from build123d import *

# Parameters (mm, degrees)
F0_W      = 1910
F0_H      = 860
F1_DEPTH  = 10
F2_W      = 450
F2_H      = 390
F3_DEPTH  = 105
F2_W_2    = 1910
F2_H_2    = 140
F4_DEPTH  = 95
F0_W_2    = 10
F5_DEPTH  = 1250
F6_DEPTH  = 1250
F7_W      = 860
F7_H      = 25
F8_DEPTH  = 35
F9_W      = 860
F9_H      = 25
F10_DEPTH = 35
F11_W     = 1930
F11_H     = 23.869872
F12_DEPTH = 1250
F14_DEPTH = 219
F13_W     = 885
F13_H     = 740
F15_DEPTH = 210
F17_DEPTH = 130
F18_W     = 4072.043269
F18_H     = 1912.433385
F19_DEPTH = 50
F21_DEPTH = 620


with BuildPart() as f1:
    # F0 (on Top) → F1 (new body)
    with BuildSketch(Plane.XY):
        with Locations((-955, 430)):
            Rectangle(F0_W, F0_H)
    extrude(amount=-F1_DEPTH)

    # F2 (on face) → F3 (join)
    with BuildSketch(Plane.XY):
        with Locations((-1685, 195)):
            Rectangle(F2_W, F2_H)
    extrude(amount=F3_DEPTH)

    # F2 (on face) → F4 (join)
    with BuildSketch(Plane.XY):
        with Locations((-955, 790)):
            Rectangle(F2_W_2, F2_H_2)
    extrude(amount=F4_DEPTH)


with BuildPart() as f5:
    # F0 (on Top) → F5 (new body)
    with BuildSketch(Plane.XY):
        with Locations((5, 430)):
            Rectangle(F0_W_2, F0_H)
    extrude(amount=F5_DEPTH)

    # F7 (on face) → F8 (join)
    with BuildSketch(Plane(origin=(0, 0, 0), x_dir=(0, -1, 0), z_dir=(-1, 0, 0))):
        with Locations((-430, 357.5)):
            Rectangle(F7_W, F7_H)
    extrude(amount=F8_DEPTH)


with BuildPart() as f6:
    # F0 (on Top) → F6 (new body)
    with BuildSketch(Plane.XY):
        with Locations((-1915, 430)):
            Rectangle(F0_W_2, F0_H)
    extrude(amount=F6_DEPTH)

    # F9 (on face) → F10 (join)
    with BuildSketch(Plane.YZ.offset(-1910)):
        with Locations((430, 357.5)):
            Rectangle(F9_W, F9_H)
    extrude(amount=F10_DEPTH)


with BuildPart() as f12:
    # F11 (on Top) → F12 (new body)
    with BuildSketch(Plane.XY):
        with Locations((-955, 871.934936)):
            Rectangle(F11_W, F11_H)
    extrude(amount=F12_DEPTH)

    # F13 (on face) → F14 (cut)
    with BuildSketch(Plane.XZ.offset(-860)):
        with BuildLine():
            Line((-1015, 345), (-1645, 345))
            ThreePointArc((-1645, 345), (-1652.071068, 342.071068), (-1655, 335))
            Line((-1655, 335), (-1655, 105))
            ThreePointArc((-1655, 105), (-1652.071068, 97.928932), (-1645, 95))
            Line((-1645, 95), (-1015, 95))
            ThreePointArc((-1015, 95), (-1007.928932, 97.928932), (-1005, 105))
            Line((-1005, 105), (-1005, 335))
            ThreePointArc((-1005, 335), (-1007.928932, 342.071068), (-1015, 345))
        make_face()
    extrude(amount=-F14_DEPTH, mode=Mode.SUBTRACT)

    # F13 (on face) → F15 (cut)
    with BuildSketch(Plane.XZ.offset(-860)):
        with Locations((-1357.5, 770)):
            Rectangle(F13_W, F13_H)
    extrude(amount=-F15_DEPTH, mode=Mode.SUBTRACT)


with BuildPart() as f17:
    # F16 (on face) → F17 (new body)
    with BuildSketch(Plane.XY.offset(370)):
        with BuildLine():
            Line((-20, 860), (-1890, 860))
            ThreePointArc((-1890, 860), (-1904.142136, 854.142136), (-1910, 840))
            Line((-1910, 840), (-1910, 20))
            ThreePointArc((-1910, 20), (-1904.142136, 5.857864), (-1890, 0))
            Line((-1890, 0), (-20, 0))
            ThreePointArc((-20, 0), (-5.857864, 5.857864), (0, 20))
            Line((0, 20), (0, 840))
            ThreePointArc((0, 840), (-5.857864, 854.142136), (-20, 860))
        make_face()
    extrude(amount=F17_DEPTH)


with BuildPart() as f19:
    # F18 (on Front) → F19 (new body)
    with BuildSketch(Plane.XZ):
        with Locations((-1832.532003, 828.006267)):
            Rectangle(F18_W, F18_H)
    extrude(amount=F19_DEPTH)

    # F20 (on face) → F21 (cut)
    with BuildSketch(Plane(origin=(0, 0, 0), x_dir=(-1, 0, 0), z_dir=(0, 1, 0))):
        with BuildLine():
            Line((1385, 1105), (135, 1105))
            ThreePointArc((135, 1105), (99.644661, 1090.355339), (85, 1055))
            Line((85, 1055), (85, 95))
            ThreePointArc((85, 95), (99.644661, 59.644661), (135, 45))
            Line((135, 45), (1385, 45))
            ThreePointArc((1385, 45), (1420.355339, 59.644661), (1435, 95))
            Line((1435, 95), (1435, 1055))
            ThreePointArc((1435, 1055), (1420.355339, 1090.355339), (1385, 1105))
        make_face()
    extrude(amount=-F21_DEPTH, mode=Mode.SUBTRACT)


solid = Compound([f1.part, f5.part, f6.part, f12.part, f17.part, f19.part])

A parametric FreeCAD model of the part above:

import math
import FreeCAD as App
import Part
import Sketcher
from FreeCAD import Vector
Q = App.Units.Quantity


def add_polygon(sketch, points):
    """Adds a closed chain of lines whose ends are joined by coincident constraints."""
    first, n = sketch.GeometryCount, len(points)
    for a, b in zip(points, points[1:] + points[:1]):
        sketch.addGeometry(Part.LineSegment(App.Vector(*a, 0), App.Vector(*b, 0)), False)
    for i in range(n):
        sketch.addConstraint(Sketcher.Constraint("Coincident", first + i, 2, first + (i + 1) % n, 1))

doc = App.newDocument("Part")
body = doc.addObject("PartDesign::Body", "Body")

# Sketch on XY plane
sketch1 = body.newObject("Sketcher::SketchObject", "Sketch")
sketch1.AttachmentSupport = (doc.getObject("XY_Plane"), [""])
sketch1.MapMode = "FlatFace"
add_polygon(sketch1, [(-1910, 860), (-1910, 0), (0, 0), (0, 860)])  # lines 0-3
sketch1.addConstraint(Sketcher.Constraint("Vertical", 0))
sketch1.addConstraint(Sketcher.Constraint("Horizontal", 1))
sketch1.addConstraint(Sketcher.Constraint("Vertical", 2))
sketch1.addConstraint(Sketcher.Constraint("Horizontal", 3))
sketch1.addConstraint(Sketcher.Constraint("Coincident", 1, 2, -1, 1))
sketch1.addConstraint(Sketcher.Constraint("DistanceX", 1, 1, 1, 2, Q("1910 mm")))
sketch1.addConstraint(Sketcher.Constraint("DistanceY", 0, 2, 0, 1, Q("860 mm")))
pad1 = body.newObject("PartDesign::Pad", "Pad")
pad1.Profile = sketch1
pad1.Length = 10
pad1.Reversed = True

# Sketch on XY plane
sketch2 = body.newObject("Sketcher::SketchObject", "Sketch001")
sketch2.AttachmentSupport = (doc.getObject("XY_Plane"), [""])
sketch2.MapMode = "FlatFace"
add_polygon(sketch2, [(-1910, 390), (-1910, 0), (-1460, 0), (-1460, 390)])  # lines 0-3
sketch2.addConstraint(Sketcher.Constraint("Vertical", 0))
sketch2.addConstraint(Sketcher.Constraint("Horizontal", 1))
sketch2.addConstraint(Sketcher.Constraint("Vertical", 2))
sketch2.addConstraint(Sketcher.Constraint("Horizontal", 3))
sketch2.addConstraint(Sketcher.Constraint("PointOnObject", 0, 2, -1))
sketch2.addConstraint(Sketcher.Constraint("DistanceX", 1, 1, 1, 2, Q("450 mm")))
sketch2.addConstraint(Sketcher.Constraint("DistanceY", 0, 2, 0, 1, Q("390 mm")))
sketch2.addConstraint(Sketcher.Constraint("DistanceX", 0, 2, -1, 1, Q("1910 mm")))
pad2 = body.newObject("PartDesign::Pad", "Pad001")
pad2.Profile = sketch2
pad2.Length = 105

# Sketch on XY plane
sketch3 = body.newObject("Sketcher::SketchObject", "Sketch002")
sketch3.AttachmentSupport = (doc.getObject("XY_Plane"), [""])
sketch3.MapMode = "FlatFace"
add_polygon(sketch3, [(-1910, 860), (-1910, 720), (0, 720), (0, 860)])  # lines 0-3
sketch3.addConstraint(Sketcher.Constraint("Vertical", 0))
sketch3.addConstraint(Sketcher.Constraint("Horizontal", 1))
sketch3.addConstraint(Sketcher.Constraint("Vertical", 2))
sketch3.addConstraint(Sketcher.Constraint("Horizontal", 3))
sketch3.addConstraint(Sketcher.Constraint("PointOnObject", 1, 2, -2))
sketch3.addConstraint(Sketcher.Constraint("DistanceX", 1, 1, 1, 2, Q("1910 mm")))
sketch3.addConstraint(Sketcher.Constraint("DistanceY", 0, 2, 0, 1, Q("140 mm")))
sketch3.addConstraint(Sketcher.Constraint("DistanceY", -1, 1, 0, 2, Q("720 mm")))
pad3 = body.newObject("PartDesign::Pad", "Pad002")
pad3.Profile = sketch3
pad3.Length = 95
body2 = doc.addObject("PartDesign::Body", "Body001")

# Sketch on XY plane
sketch4 = body2.newObject("Sketcher::SketchObject", "Sketch003")
sketch4.AttachmentSupport = (doc.getObject("XY_Plane001"), [""])
sketch4.MapMode = "FlatFace"
add_polygon(sketch4, [(0, 860), (0, 0), (10, 0), (10, 860)])  # lines 0-3
sketch4.addConstraint(Sketcher.Constraint("Vertical", 0))
sketch4.addConstraint(Sketcher.Constraint("Horizontal", 1))
sketch4.addConstraint(Sketcher.Constraint("Vertical", 2))
sketch4.addConstraint(Sketcher.Constraint("Horizontal", 3))
sketch4.addConstraint(Sketcher.Constraint("Coincident", 0, 2, -1, 1))
sketch4.addConstraint(Sketcher.Constraint("DistanceX", 1, 1, 1, 2, Q("10 mm")))
sketch4.addConstraint(Sketcher.Constraint("DistanceY", 0, 2, 0, 1, Q("860 mm")))
pad4 = body2.newObject("PartDesign::Pad", "Pad003")
pad4.Profile = sketch4
pad4.Length = 1250

# Sketch on YZ plane
sketch5 = body2.newObject("Sketcher::SketchObject", "Sketch004")
sketch5.AttachmentSupport = (doc.getObject("YZ_Plane001"), [""])
sketch5.MapMode = "FlatFace"
add_polygon(sketch5, [(860, 370), (860, 345), (0, 345), (0, 370)])  # lines 0-3
sketch5.addConstraint(Sketcher.Constraint("Vertical", 0))
sketch5.addConstraint(Sketcher.Constraint("Horizontal", 1))
sketch5.addConstraint(Sketcher.Constraint("Vertical", 2))
sketch5.addConstraint(Sketcher.Constraint("Horizontal", 3))
sketch5.addConstraint(Sketcher.Constraint("PointOnObject", 1, 2, -2))
sketch5.addConstraint(Sketcher.Constraint("DistanceX", 1, 2, 1, 1, Q("860 mm")))
sketch5.addConstraint(Sketcher.Constraint("DistanceY", 0, 2, 0, 1, Q("25 mm")))
sketch5.addConstraint(Sketcher.Constraint("DistanceY", -1, 1, 0, 2, Q("345 mm")))
pad5 = body2.newObject("PartDesign::Pad", "Pad004")
pad5.Profile = sketch5
pad5.Length = 35
pad5.Reversed = True
body3 = doc.addObject("PartDesign::Body", "Body002")

# Sketch on XY plane
sketch6 = body3.newObject("Sketcher::SketchObject", "Sketch005")
sketch6.AttachmentSupport = (doc.getObject("XY_Plane002"), [""])
sketch6.MapMode = "FlatFace"
add_polygon(sketch6, [(-1920, 860), (-1920, 0), (-1910, 0), (-1910, 860)])  # lines 0-3
sketch6.addConstraint(Sketcher.Constraint("Vertical", 0))
sketch6.addConstraint(Sketcher.Constraint("Horizontal", 1))
sketch6.addConstraint(Sketcher.Constraint("Vertical", 2))
sketch6.addConstraint(Sketcher.Constraint("Horizontal", 3))
sketch6.addConstraint(Sketcher.Constraint("PointOnObject", 0, 2, -1))
sketch6.addConstraint(Sketcher.Constraint("DistanceX", 1, 1, 1, 2, Q("10 mm")))
sketch6.addConstraint(Sketcher.Constraint("DistanceY", 0, 2, 0, 1, Q("860 mm")))
sketch6.addConstraint(Sketcher.Constraint("DistanceX", 0, 2, -1, 1, Q("1920 mm")))
pad6 = body3.newObject("PartDesign::Pad", "Pad005")
pad6.Profile = sketch6
pad6.Length = 1250

# Sketch on YZ plane
sketch7 = body3.newObject("Sketcher::SketchObject", "Sketch006")
sketch7.AttachmentSupport = (doc.getObject("YZ_Plane002"), [""])
sketch7.MapMode = "FlatFace"
sketch7.AttachmentOffset = App.Placement(Vector(0, 0, -1910), App.Rotation())
add_polygon(sketch7, [(0, 370), (0, 345), (860, 345), (860, 370)])  # lines 0-3
sketch7.addConstraint(Sketcher.Constraint("Vertical", 0))
sketch7.addConstraint(Sketcher.Constraint("Horizontal", 1))
sketch7.addConstraint(Sketcher.Constraint("Vertical", 2))
sketch7.addConstraint(Sketcher.Constraint("Horizontal", 3))
sketch7.addConstraint(Sketcher.Constraint("PointOnObject", 0, 2, -2))
sketch7.addConstraint(Sketcher.Constraint("DistanceX", 1, 1, 1, 2, Q("860 mm")))
sketch7.addConstraint(Sketcher.Constraint("DistanceY", 0, 2, 0, 1, Q("25 mm")))
sketch7.addConstraint(Sketcher.Constraint("DistanceY", -1, 1, 0, 2, Q("345 mm")))
pad7 = body3.newObject("PartDesign::Pad", "Pad006")
pad7.Profile = sketch7
pad7.Length = 35
body4 = doc.addObject("PartDesign::Body", "Body003")

# Sketch on XY plane
sketch8 = body4.newObject("Sketcher::SketchObject", "Sketch007")
sketch8.AttachmentSupport = (doc.getObject("XY_Plane003"), [""])
sketch8.MapMode = "FlatFace"
add_polygon(sketch8, [(-1920, 884), (-1920, 860), (10, 860), (10, 884)])  # lines 0-3
sketch8.addConstraint(Sketcher.Constraint("Vertical", 0))
sketch8.addConstraint(Sketcher.Constraint("Horizontal", 1))
sketch8.addConstraint(Sketcher.Constraint("Vertical", 2))
sketch8.addConstraint(Sketcher.Constraint("Horizontal", 3))
sketch8.addConstraint(Sketcher.Constraint("DistanceX", 1, 1, 1, 2, Q("1930 mm")))
sketch8.addConstraint(Sketcher.Constraint("DistanceX", 0, 2, -1, 1, Q("1920 mm")))
sketch8.addConstraint(Sketcher.Constraint("DistanceY", -1, 1, 0, 2, Q("860 mm")))
sketch8.addConstraint(Sketcher.Constraint("DistanceY", 0, 2, 0, 1, Q("23.869872 mm")))
pad8 = body4.newObject("PartDesign::Pad", "Pad007")
pad8.Profile = sketch8
pad8.Length = 1250

# Sketch on XZ plane
sketch9 = body4.newObject("Sketcher::SketchObject", "Sketch008")
sketch9.AttachmentSupport = (doc.getObject("XZ_Plane003"), [""])
sketch9.MapMode = "FlatFace"
sketch9.AttachmentOffset = App.Placement(Vector(0, 0, -860), App.Rotation())
sketch9.addGeometry(Part.LineSegment(Vector(-1015, 345, 0), Vector(-1645, 345, 0)), False)
sketch9.addGeometry(Part.ArcOfCircle(Part.Circle(Vector(-1645, 335, 0), Vector(0, 0, 1), 10), math.radians(90), math.radians(180)), False)
sketch9.addGeometry(Part.LineSegment(Vector(-1655, 335, 0), Vector(-1655, 105, 0)), False)
sketch9.addGeometry(Part.ArcOfCircle(Part.Circle(Vector(-1645, 105, 0), Vector(0, 0, 1), 10), math.radians(180), math.radians(270)), False)
sketch9.addGeometry(Part.LineSegment(Vector(-1645, 95, 0), Vector(-1015, 95, 0)), False)
sketch9.addGeometry(Part.ArcOfCircle(Part.Circle(Vector(-1015, 105, 0), Vector(0, 0, 1), 10), math.radians(-90), math.radians(0)), False)
sketch9.addGeometry(Part.LineSegment(Vector(-1005, 105, 0), Vector(-1005, 335, 0)), False)
sketch9.addGeometry(Part.ArcOfCircle(Part.Circle(Vector(-1015, 335, 0), Vector(0, 0, 1), 10), math.radians(0), math.radians(90)), False)
sketch9.addConstraint(Sketcher.Constraint("Tangent", 0, 2, 1, 1))
sketch9.addConstraint(Sketcher.Constraint("Tangent", 1, 2, 2, 1))
sketch9.addConstraint(Sketcher.Constraint("Tangent", 2, 2, 3, 1))
sketch9.addConstraint(Sketcher.Constraint("Tangent", 3, 2, 4, 1))
sketch9.addConstraint(Sketcher.Constraint("Tangent", 4, 2, 5, 1))
sketch9.addConstraint(Sketcher.Constraint("Tangent", 5, 2, 6, 1))
sketch9.addConstraint(Sketcher.Constraint("Tangent", 6, 2, 7, 1))
sketch9.addConstraint(Sketcher.Constraint("Tangent", 7, 2, 0, 1))
sketch9.addConstraint(Sketcher.Constraint("Horizontal", 0))
sketch9.addConstraint(Sketcher.Constraint("Vertical", 2))
sketch9.addConstraint(Sketcher.Constraint("Horizontal", 4))
sketch9.addConstraint(Sketcher.Constraint("Vertical", 6))
sketch9.addConstraint(Sketcher.Constraint("Equal", 1, 3))
sketch9.addConstraint(Sketcher.Constraint("Equal", 3, 5))
sketch9.addConstraint(Sketcher.Constraint("Equal", 5, 7))
sketch9.addConstraint(Sketcher.Constraint("Radius", 1, Q("9.999999 mm")))
sketch9.addConstraint(Sketcher.Constraint("DistanceX", 0, 2, 0, 1, Q("630 mm")))
sketch9.addConstraint(Sketcher.Constraint("DistanceY", 2, 2, 2, 1, Q("230 mm")))
sketch9.addConstraint(Sketcher.Constraint("DistanceX", 1, 3, -1, 1, Q("1645.000001 mm")))
sketch9.addConstraint(Sketcher.Constraint("DistanceY", -1, 1, 1, 3, Q("335.000001 mm")))
pocket1 = body4.newObject("PartDesign::Pocket", "Pocket")
pocket1.Profile = sketch9
pocket1.Length = 219

# Sketch on XZ plane
sketch10 = body4.newObject("Sketcher::SketchObject", "Sketch009")
sketch10.AttachmentSupport = (doc.getObject("XZ_Plane003"), [""])
sketch10.MapMode = "FlatFace"
sketch10.AttachmentOffset = App.Placement(Vector(0, 0, -860), App.Rotation())
add_polygon(sketch10, [(-1800, 1140), (-1800, 400), (-915, 400), (-915, 1140)])  # lines 0-3
sketch10.addConstraint(Sketcher.Constraint("Vertical", 0))
sketch10.addConstraint(Sketcher.Constraint("Horizontal", 1))
sketch10.addConstraint(Sketcher.Constraint("Vertical", 2))
sketch10.addConstraint(Sketcher.Constraint("Horizontal", 3))
sketch10.addConstraint(Sketcher.Constraint("DistanceX", 1, 1, 1, 2, Q("885 mm")))
sketch10.addConstraint(Sketcher.Constraint("DistanceY", 0, 2, 0, 1, Q("740 mm")))
sketch10.addConstraint(Sketcher.Constraint("DistanceX", 0, 2, -1, 1, Q("1800 mm")))
sketch10.addConstraint(Sketcher.Constraint("DistanceY", -1, 1, 0, 2, Q("400 mm")))
pocket2 = body4.newObject("PartDesign::Pocket", "Pocket001")
pocket2.Profile = sketch10
pocket2.Length = 210
body5 = doc.addObject("PartDesign::Body", "Body004")

# Sketch on XY plane
sketch11 = body5.newObject("Sketcher::SketchObject", "Sketch010")
sketch11.AttachmentSupport = (doc.getObject("XY_Plane004"), [""])
sketch11.MapMode = "FlatFace"
sketch11.AttachmentOffset = App.Placement(Vector(0, 0, 370), App.Rotation())
sketch11.addGeometry(Part.LineSegment(Vector(-20, 860, 0), Vector(-1890, 860, 0)), False)
sketch11.addGeometry(Part.ArcOfCircle(Part.Circle(Vector(-1890, 840, 0), Vector(0, 0, 1), 20), math.radians(90), math.radians(180)), False)
sketch11.addGeometry(Part.LineSegment(Vector(-1910, 840, 0), Vector(-1910, 20, 0)), False)
sketch11.addGeometry(Part.ArcOfCircle(Part.Circle(Vector(-1890, 20, 0), Vector(0, 0, 1), 20), math.radians(180), math.radians(270)), False)
sketch11.addGeometry(Part.LineSegment(Vector(-1890, 0, 0), Vector(-20, 0, 0)), False)
sketch11.addGeometry(Part.ArcOfCircle(Part.Circle(Vector(-20, 20, 0), Vector(0, 0, 1), 20), math.radians(-90), math.radians(0)), False)
sketch11.addGeometry(Part.LineSegment(Vector(0, 20, 0), Vector(0, 840, 0)), False)
sketch11.addGeometry(Part.ArcOfCircle(Part.Circle(Vector(-20, 840, 0), Vector(0, 0, 1), 20), math.radians(0), math.radians(90)), False)
sketch11.addConstraint(Sketcher.Constraint("Tangent", 0, 2, 1, 1))
sketch11.addConstraint(Sketcher.Constraint("Tangent", 1, 2, 2, 1))
sketch11.addConstraint(Sketcher.Constraint("Tangent", 2, 2, 3, 1))
sketch11.addConstraint(Sketcher.Constraint("Tangent", 3, 2, 4, 1))
sketch11.addConstraint(Sketcher.Constraint("Tangent", 4, 2, 5, 1))
sketch11.addConstraint(Sketcher.Constraint("Tangent", 5, 2, 6, 1))
sketch11.addConstraint(Sketcher.Constraint("Tangent", 6, 2, 7, 1))
sketch11.addConstraint(Sketcher.Constraint("Tangent", 7, 2, 0, 1))
sketch11.addConstraint(Sketcher.Constraint("Horizontal", 0))
sketch11.addConstraint(Sketcher.Constraint("Vertical", 2))
sketch11.addConstraint(Sketcher.Constraint("Horizontal", 4))
sketch11.addConstraint(Sketcher.Constraint("Vertical", 6))
sketch11.addConstraint(Sketcher.Constraint("Equal", 1, 3))
sketch11.addConstraint(Sketcher.Constraint("Equal", 3, 5))
sketch11.addConstraint(Sketcher.Constraint("Equal", 5, 7))
sketch11.addConstraint(Sketcher.Constraint("PointOnObject", 3, 2, -1))
sketch11.addConstraint(Sketcher.Constraint("PointOnObject", 5, 2, -2))
sketch11.addConstraint(Sketcher.Constraint("Radius", 1, Q("19.999999 mm")))
sketch11.addConstraint(Sketcher.Constraint("DistanceX", 0, 2, 0, 1, Q("1870 mm")))
sketch11.addConstraint(Sketcher.Constraint("DistanceY", 2, 2, 2, 1, Q("820 mm")))
pad9 = body5.newObject("PartDesign::Pad", "Pad008")
pad9.Profile = sketch11
pad9.Length = 130
body6 = doc.addObject("PartDesign::Body", "Body005")

# Sketch on XZ plane
sketch12 = body6.newObject("Sketcher::SketchObject", "Sketch011")
sketch12.AttachmentSupport = (doc.getObject("XZ_Plane005"), [""])
sketch12.MapMode = "FlatFace"
add_polygon(sketch12, [(-3869, 1784), (-3869, -128), (203, -128), (203, 1784)])  # lines 0-3
sketch12.addConstraint(Sketcher.Constraint("Vertical", 0))
sketch12.addConstraint(Sketcher.Constraint("Horizontal", 1))
sketch12.addConstraint(Sketcher.Constraint("Vertical", 2))
sketch12.addConstraint(Sketcher.Constraint("Horizontal", 3))
sketch12.addConstraint(Sketcher.Constraint("DistanceX", 1, 1, 1, 2, Q("4072.043269 mm")))
sketch12.addConstraint(Sketcher.Constraint("DistanceY", 0, 2, 0, 1, Q("1912.433385 mm")))
sketch12.addConstraint(Sketcher.Constraint("DistanceX", -1, 1, 1, 2, Q("203.489632 mm")))
sketch12.addConstraint(Sketcher.Constraint("DistanceY", -1, 1, 2, 2, Q("1784.222959 mm")))
pad10 = body6.newObject("PartDesign::Pad", "Pad009")
pad10.Profile = sketch12
pad10.Length = 50

# Sketch on XZ plane
sketch13 = body6.newObject("Sketcher::SketchObject", "Sketch012")
sketch13.AttachmentSupport = (doc.getObject("XZ_Plane005"), [""])
sketch13.MapMode = "FlatFace"
sketch13.addGeometry(Part.LineSegment(Vector(-1385, 1105, 0), Vector(-135, 1105, 0)), False)
sketch13.addGeometry(Part.ArcOfCircle(Part.Circle(Vector(-135, 1055, 0), Vector(0, 0, 1), 50), math.radians(0), math.radians(90)), False)
sketch13.addGeometry(Part.LineSegment(Vector(-85, 1055, 0), Vector(-85, 95, 0)), False)
sketch13.addGeometry(Part.ArcOfCircle(Part.Circle(Vector(-135, 95, 0), Vector(0, 0, 1), 50), math.radians(-90), math.radians(0)), False)
sketch13.addGeometry(Part.LineSegment(Vector(-135, 45, 0), Vector(-1385, 45, 0)), False)
sketch13.addGeometry(Part.ArcOfCircle(Part.Circle(Vector(-1385, 95, 0), Vector(0, 0, 1), 50), math.radians(-180), math.radians(-90)), False)
sketch13.addGeometry(Part.LineSegment(Vector(-1435, 95, 0), Vector(-1435, 1055, 0)), False)
sketch13.addGeometry(Part.ArcOfCircle(Part.Circle(Vector(-1385, 1055, 0), Vector(0, 0, 1), 50), math.radians(90), math.radians(180)), False)
sketch13.addConstraint(Sketcher.Constraint("Tangent", 0, 2, 1, 2))
sketch13.addConstraint(Sketcher.Constraint("Tangent", 1, 1, 2, 1))
sketch13.addConstraint(Sketcher.Constraint("Tangent", 2, 2, 3, 2))
sketch13.addConstraint(Sketcher.Constraint("Tangent", 3, 1, 4, 1))
sketch13.addConstraint(Sketcher.Constraint("Tangent", 4, 2, 5, 2))
sketch13.addConstraint(Sketcher.Constraint("Tangent", 5, 1, 6, 1))
sketch13.addConstraint(Sketcher.Constraint("Tangent", 6, 2, 7, 2))
sketch13.addConstraint(Sketcher.Constraint("Tangent", 7, 1, 0, 1))
sketch13.addConstraint(Sketcher.Constraint("Horizontal", 0))
sketch13.addConstraint(Sketcher.Constraint("Vertical", 2))
sketch13.addConstraint(Sketcher.Constraint("Horizontal", 4))
sketch13.addConstraint(Sketcher.Constraint("Vertical", 6))
sketch13.addConstraint(Sketcher.Constraint("Equal", 1, 3))
sketch13.addConstraint(Sketcher.Constraint("Equal", 3, 5))
sketch13.addConstraint(Sketcher.Constraint("Equal", 5, 7))
sketch13.addConstraint(Sketcher.Constraint("Radius", 1, Q("50 mm")))
sketch13.addConstraint(Sketcher.Constraint("DistanceX", 0, 1, 0, 2, Q("1250 mm")))
sketch13.addConstraint(Sketcher.Constraint("DistanceY", 2, 2, 2, 1, Q("960 mm")))
sketch13.addConstraint(Sketcher.Constraint("DistanceX", 1, 3, -1, 1, Q("135 mm")))
sketch13.addConstraint(Sketcher.Constraint("DistanceY", -1, 1, 1, 3, Q("1055 mm")))
pocket3 = body6.newObject("PartDesign::Pocket", "Pocket002")
pocket3.Profile = sketch13
pocket3.Length = 620
pocket3.Reversed = True

doc.recompute()
